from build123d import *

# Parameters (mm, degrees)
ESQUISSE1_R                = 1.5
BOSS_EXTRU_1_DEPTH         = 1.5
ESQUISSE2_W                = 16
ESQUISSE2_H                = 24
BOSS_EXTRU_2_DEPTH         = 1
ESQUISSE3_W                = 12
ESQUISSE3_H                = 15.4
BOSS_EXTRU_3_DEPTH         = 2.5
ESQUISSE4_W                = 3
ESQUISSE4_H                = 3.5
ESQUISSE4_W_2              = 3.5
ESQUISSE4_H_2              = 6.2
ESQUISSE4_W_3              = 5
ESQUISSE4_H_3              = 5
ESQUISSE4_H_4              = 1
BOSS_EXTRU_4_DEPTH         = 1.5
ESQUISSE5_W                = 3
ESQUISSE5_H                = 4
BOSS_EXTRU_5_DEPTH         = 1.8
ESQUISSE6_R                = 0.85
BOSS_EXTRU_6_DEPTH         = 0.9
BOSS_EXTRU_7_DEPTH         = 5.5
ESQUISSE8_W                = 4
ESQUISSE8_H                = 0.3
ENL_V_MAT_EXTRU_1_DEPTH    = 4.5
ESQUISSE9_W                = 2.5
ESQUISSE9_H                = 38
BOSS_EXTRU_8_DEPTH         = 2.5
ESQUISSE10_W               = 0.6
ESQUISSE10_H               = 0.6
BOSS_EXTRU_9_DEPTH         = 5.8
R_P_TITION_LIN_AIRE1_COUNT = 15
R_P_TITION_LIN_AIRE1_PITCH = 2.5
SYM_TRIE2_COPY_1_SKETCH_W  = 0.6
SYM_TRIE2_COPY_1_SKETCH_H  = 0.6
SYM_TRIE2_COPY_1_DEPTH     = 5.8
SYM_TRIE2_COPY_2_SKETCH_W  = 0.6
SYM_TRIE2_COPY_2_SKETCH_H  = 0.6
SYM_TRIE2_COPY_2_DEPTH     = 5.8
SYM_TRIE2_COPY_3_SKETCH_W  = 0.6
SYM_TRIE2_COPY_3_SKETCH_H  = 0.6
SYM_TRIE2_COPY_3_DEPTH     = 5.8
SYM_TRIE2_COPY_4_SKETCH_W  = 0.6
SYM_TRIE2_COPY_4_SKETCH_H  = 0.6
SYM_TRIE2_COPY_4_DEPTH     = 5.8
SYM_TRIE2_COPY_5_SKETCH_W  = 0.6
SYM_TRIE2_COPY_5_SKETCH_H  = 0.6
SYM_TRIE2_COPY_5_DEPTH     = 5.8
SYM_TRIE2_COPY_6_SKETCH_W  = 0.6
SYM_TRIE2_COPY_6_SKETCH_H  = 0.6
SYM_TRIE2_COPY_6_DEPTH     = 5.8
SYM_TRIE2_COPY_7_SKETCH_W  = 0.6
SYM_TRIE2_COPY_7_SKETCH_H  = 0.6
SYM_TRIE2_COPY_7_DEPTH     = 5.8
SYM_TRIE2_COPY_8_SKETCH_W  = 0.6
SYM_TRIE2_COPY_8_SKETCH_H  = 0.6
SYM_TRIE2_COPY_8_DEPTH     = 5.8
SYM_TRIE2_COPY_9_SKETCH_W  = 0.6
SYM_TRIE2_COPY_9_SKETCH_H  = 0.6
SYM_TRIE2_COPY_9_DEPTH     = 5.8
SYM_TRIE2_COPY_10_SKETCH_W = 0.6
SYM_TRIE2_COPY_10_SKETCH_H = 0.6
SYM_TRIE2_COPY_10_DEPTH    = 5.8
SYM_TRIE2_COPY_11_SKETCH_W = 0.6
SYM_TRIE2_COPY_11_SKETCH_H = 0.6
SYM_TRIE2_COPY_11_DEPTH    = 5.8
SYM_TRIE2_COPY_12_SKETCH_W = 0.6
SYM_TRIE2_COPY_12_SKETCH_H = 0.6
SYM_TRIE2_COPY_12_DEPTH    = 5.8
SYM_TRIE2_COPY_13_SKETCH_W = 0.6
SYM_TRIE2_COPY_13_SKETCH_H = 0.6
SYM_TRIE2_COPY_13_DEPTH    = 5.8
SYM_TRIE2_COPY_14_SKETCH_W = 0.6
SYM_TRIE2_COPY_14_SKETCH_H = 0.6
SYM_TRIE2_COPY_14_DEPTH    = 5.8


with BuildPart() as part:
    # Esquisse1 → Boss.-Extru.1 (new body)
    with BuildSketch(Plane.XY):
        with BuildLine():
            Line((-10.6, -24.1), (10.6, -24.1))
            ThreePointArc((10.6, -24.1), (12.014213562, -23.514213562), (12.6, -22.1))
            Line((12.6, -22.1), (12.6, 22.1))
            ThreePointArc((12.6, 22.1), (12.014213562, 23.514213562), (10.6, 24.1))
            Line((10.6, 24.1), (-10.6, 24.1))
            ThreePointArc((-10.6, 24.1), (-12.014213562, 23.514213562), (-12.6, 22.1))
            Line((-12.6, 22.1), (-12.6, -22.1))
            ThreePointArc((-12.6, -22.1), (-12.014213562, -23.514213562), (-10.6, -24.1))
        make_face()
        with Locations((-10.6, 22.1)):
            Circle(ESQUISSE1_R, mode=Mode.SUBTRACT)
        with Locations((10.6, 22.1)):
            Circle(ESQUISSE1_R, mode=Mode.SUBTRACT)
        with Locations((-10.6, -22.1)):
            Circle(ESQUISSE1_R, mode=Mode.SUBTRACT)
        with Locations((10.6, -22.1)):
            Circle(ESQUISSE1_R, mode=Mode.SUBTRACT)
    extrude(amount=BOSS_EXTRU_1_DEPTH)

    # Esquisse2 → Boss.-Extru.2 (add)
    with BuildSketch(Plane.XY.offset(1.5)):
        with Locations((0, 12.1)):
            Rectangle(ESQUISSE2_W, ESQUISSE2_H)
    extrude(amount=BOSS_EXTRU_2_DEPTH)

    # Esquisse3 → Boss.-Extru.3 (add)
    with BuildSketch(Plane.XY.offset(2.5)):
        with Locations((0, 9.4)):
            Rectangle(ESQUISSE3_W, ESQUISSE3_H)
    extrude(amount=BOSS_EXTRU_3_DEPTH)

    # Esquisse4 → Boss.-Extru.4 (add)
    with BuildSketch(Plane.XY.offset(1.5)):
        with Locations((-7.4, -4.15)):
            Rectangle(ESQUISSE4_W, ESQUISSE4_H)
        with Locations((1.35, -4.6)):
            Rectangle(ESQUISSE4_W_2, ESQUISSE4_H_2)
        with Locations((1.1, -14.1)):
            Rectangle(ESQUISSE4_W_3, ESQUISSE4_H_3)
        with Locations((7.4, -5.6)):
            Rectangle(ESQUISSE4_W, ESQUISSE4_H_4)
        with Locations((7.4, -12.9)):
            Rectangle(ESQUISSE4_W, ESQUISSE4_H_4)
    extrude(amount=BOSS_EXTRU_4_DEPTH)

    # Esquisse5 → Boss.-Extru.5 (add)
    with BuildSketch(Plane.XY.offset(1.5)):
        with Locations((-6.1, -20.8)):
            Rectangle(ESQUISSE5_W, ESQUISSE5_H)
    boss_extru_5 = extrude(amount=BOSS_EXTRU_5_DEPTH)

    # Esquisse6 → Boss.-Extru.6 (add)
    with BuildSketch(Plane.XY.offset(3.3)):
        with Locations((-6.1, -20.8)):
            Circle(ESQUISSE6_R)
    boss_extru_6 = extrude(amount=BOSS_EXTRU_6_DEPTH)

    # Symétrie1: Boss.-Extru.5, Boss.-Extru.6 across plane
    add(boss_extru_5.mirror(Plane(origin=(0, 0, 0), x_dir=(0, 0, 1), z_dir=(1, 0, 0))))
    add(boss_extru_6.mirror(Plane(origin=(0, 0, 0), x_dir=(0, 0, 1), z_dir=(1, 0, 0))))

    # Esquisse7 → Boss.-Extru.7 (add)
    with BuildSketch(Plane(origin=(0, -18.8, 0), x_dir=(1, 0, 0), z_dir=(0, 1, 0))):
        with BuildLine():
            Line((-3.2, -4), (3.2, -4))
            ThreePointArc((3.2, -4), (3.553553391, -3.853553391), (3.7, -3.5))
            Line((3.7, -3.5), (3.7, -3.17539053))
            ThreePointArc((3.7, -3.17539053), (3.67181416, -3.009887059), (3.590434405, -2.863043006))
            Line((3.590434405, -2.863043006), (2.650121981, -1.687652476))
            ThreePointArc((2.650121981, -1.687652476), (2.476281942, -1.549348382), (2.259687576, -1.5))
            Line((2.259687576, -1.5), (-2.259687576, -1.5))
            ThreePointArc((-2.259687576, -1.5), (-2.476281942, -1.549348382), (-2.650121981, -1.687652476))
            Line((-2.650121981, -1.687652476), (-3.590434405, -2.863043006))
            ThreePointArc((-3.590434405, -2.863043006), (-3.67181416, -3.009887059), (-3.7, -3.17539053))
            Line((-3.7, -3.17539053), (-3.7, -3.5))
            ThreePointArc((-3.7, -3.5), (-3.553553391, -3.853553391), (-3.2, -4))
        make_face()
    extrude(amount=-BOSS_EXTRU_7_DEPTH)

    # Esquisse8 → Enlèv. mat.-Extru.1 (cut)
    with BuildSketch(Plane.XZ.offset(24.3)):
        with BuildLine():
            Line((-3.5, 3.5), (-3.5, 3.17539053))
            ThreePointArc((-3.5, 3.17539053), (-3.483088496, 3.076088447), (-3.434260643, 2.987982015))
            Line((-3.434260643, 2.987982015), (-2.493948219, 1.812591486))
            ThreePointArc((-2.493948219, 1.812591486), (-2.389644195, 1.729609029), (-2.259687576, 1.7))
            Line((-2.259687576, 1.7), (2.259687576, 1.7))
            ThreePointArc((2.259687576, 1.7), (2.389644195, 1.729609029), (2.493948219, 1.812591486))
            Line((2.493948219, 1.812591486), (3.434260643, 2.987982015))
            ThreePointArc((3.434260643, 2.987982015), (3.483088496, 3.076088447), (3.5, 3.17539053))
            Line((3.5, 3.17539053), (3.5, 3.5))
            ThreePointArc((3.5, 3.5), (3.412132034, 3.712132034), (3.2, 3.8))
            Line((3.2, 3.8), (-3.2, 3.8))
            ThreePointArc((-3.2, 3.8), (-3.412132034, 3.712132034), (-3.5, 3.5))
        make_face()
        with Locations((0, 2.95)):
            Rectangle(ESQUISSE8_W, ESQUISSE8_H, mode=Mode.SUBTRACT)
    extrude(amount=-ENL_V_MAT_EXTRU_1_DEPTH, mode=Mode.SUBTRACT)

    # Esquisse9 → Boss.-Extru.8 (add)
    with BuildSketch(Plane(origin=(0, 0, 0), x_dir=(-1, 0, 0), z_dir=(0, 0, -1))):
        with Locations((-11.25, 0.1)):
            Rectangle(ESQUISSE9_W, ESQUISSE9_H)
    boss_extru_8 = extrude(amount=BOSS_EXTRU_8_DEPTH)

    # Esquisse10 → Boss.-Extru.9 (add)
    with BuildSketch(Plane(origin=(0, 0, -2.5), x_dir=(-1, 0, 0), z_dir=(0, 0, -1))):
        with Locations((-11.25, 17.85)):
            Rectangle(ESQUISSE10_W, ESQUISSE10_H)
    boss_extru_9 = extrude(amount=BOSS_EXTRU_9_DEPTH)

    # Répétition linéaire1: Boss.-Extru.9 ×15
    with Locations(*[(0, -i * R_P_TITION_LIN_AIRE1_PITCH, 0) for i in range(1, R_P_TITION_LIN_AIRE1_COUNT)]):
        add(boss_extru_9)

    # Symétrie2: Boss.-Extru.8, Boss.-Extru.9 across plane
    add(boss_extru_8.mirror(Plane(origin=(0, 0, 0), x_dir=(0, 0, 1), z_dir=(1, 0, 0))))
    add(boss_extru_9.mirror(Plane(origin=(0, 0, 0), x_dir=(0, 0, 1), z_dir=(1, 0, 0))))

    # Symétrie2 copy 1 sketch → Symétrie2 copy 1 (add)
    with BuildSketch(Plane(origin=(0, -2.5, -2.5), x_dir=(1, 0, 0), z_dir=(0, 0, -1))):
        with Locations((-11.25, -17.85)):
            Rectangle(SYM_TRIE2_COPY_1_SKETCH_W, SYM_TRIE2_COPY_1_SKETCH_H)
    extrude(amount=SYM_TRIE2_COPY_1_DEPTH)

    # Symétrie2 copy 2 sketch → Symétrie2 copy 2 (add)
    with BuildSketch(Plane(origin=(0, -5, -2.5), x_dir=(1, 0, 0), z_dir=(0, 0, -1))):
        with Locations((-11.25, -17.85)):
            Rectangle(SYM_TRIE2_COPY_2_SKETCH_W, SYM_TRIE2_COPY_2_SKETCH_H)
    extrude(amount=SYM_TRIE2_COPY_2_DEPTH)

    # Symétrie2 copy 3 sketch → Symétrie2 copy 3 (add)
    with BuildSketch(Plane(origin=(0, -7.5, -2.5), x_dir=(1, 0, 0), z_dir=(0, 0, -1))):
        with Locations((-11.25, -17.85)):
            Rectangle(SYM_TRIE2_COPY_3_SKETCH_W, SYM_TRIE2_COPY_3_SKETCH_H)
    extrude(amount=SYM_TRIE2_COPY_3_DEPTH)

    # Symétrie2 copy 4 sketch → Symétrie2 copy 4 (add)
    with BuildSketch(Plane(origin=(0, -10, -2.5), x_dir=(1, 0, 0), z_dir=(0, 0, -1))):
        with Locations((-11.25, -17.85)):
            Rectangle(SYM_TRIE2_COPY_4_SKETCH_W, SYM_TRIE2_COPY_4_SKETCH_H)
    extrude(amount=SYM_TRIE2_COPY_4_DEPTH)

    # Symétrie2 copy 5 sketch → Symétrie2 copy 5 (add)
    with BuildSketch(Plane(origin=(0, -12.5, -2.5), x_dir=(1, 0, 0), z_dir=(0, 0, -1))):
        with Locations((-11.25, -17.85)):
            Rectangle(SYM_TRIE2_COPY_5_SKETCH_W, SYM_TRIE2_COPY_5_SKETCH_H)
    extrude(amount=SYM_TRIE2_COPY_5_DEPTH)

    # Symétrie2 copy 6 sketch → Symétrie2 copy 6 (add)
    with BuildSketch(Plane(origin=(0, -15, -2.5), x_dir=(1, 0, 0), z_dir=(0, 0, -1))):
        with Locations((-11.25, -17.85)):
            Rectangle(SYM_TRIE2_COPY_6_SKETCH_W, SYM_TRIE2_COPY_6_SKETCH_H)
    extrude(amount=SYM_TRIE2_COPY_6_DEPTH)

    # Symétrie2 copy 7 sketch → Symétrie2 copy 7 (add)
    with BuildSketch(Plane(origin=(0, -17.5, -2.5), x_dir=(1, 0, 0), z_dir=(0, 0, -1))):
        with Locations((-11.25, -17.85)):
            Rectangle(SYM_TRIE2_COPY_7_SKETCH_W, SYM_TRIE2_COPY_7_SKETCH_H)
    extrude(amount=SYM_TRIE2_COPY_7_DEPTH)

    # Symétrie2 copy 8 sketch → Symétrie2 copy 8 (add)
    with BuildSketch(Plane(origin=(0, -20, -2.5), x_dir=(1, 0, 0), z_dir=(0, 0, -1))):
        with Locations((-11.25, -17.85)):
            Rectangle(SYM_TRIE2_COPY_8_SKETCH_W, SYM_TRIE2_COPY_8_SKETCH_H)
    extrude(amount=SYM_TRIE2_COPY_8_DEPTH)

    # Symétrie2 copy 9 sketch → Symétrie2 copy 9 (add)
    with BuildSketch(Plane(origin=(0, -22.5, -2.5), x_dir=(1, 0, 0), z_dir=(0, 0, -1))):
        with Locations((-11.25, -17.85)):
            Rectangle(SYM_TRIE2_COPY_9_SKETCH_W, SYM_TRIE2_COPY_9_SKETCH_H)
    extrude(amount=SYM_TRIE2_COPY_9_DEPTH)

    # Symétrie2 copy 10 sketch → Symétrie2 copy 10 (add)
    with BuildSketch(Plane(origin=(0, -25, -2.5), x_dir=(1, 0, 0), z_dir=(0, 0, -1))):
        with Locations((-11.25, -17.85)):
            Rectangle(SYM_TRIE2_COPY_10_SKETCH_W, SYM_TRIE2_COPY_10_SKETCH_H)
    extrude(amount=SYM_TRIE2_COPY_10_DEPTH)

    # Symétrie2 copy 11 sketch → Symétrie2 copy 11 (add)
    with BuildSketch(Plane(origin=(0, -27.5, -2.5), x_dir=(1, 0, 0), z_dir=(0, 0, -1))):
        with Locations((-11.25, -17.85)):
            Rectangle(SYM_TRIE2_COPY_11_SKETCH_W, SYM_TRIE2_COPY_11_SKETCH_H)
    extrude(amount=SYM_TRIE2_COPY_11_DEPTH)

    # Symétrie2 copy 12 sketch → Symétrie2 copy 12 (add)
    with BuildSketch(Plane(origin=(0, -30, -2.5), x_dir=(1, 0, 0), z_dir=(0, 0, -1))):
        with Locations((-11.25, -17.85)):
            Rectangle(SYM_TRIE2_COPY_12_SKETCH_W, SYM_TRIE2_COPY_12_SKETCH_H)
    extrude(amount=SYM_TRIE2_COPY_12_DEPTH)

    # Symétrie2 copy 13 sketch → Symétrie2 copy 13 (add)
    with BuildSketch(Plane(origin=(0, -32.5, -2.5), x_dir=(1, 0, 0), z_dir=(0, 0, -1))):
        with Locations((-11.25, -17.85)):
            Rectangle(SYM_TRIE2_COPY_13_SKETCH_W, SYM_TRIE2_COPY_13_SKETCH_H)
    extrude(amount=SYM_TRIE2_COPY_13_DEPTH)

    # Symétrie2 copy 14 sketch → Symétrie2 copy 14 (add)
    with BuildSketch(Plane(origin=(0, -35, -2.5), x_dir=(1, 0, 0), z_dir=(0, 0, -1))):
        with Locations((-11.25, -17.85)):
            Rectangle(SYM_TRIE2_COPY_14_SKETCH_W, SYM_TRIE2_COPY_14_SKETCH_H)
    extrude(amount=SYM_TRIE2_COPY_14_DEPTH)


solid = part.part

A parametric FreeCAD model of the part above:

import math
import FreeCAD as App
import Part
import Sketcher
Q = App.Units.Quantity


def add_polygon(sketch, points):
    """Adds a closed chain of lines whose ends are joined by coincident constraints."""
    first, n = sketch.GeometryCount, len(points)
    for a, b in zip(points, points[1:] + points[:1]):
        sketch.addGeometry(Part.LineSegment(App.Vector(*a, 0), App.Vector(*b, 0)), False)
    for i in range(n):
        sketch.addConstraint(Sketcher.Constraint("Coincident", first + i, 2, first + (i + 1) % n, 1))

doc = App.newDocument("Part")
body = doc.addObject("PartDesign::Body", "Body")

# Sketch on XY plane
sketch1 = doc.addObject("Sketcher::SketchObject", "Sketch")
body.addObject(sketch1)
sketch1.AttachmentSupport = (doc.XY_Plane, [""])
sketch1.MapMode = "FlatFace"
sketch1.addGeometry(Part.LineSegment(App.Vector(-10.6, -24.1, 0), App.Vector(10.6, -24.1, 0)), False)
sketch1.addGeometry(Part.ArcOfCircle(Part.Circle(App.Vector(10.6, -22.1, 0), App.Vector(0, 0, 1), 2), math.radians(-90), math.radians(0)), False)
sketch1.addGeometry(Part.LineSegment(App.Vector(12.6, -22.1, 0), App.Vector(12.6, 22.1, 0)), False)
sketch1.addGeometry(Part.ArcOfCircle(Part.Circle(App.Vector(10.6, 22.1, 0), App.Vector(0, 0, 1), 2), math.radians(0), math.radians(90)), False)
sketch1.addGeometry(Part.LineSegment(App.Vector(10.6, 24.1, 0), App.Vector(-10.6, 24.1, 0)), False)
sketch1.addGeometry(Part.ArcOfCircle(Part.Circle(App.Vector(-10.6, 22.1, 0), App.Vector(0, 0, 1), 2), math.radians(90), math.radians(180)), False)
sketch1.addGeometry(Part.LineSegment(App.Vector(-12.6, 22.1, 0), App.Vector(-12.6, -22.1, 0)), False)
sketch1.addGeometry(Part.ArcOfCircle(Part.Circle(App.Vector(-10.6, -22.1, 0), App.Vector(0, 0, 1), 2), math.radians(-180), math.radians(-90)), False)
sketch1.addGeometry(Part.Circle(App.Vector(-10.6, -22.1, 0), App.Vector(0, 0, 1), 1.5), False)
sketch1.addGeometry(Part.Circle(App.Vector(10.6, -22.1, 0), App.Vector(0, 0, 1), 1.5), False)
sketch1.addGeometry(Part.Circle(App.Vector(-10.6, 22.1, 0), App.Vector(0, 0, 1), 1.5), False)
sketch1.addGeometry(Part.Circle(App.Vector(10.6, 22.1, 0), App.Vector(0, 0, 1), 1.5), False)
sketch1.addConstraint(Sketcher.Constraint("Tangent", 0, 2, 1, 1))
sketch1.addConstraint(Sketcher.Constraint("Tangent", 1, 2, 2, 1))
sketch1.addConstraint(Sketcher.Constraint("Tangent", 2, 2, 3, 1))
sketch1.addConstraint(Sketcher.Constraint("Tangent", 3, 2, 4, 1))
sketch1.addConstraint(Sketcher.Constraint("Tangent", 4, 2, 5, 1))
sketch1.addConstraint(Sketcher.Constraint("Tangent", 5, 2, 6, 1))
sketch1.addConstraint(Sketcher.Constraint("Tangent", 6, 2, 7, 1))
sketch1.addConstraint(Sketcher.Constraint("Tangent", 7, 2, 0, 1))
sketch1.addConstraint(Sketcher.Constraint("Horizontal", 0))
sketch1.addConstraint(Sketcher.Constraint("Vertical", 2))
sketch1.addConstraint(Sketcher.Constraint("Horizontal", 4))
sketch1.addConstraint(Sketcher.Constraint("Vertical", 6))
sketch1.addConstraint(Sketcher.Constraint("Coincident", 8, 3, 7, 3))
sketch1.addConstraint(Sketcher.Constraint("Coincident", 9, 3, 1, 3))
sketch1.addConstraint(Sketcher.Constraint("Coincident", 10, 3, 5, 3))
sketch1.addConstraint(Sketcher.Constraint("Coincident", 11, 3, 3, 3))
sketch1.addConstraint(Sketcher.Constraint("Equal", 1, 3))
sketch1.addConstraint(Sketcher.Constraint("Equal", 3, 5))
sketch1.addConstraint(Sketcher.Constraint("Equal", 5, 7))
sketch1.addConstraint(Sketcher.Constraint("Equal", 8, 9))
sketch1.addConstraint(Sketcher.Constraint("Equal", 9, 10))
sketch1.addConstraint(Sketcher.Constraint("Equal", 10, 11))
sketch1.addConstraint(Sketcher.Constraint("Symmetric", 1, 3, 5, 3, -1, 1))
sketch1.addConstraint(Sketcher.Constraint("Diameter", 8, Q("3 mm")))
sketch1.addConstraint(Sketcher.Constraint("Radius", 1, Q("2 mm")))
sketch1.addConstraint(Sketcher.Constraint("DistanceX", 0, 1, 0, 2, Q("21.2 mm")))
sketch1.addConstraint(Sketcher.Constraint("DistanceY", 2, 1, 2, 2, Q("44.2 mm")))
pad1 = doc.addObject("PartDesign::Pad", "Pad")
body.addObject(pad1)
pad1.Profile = sketch1
pad1.Length = 1.5

# Sketch on XY plane
sketch2 = doc.addObject("Sketcher::SketchObject", "Sketch001")
body.addObject(sketch2)
sketch2.AttachmentSupport = (doc.XY_Plane, [""])
sketch2.MapMode = "FlatFace"
sketch2.AttachmentOffset = App.Placement(App.Vector(0, 0, 1.5), App.Rotation())
add_polygon(sketch2, [(-8, 24.1), (-8, 0.1), (8, 0.1), (8, 24.1)])  # lines 0-3
sketch2.addConstraint(Sketcher.Constraint("Vertical", 0))
sketch2.addConstraint(Sketcher.Constraint("Horizontal", 1))
sketch2.addConstraint(Sketcher.Constraint("Vertical", 2))
sketch2.addConstraint(Sketcher.Constraint("Horizontal", 3))
sketch2.addConstraint(Sketcher.Constraint("DistanceX", 1, 1, 1, 2, Q("16 mm")))
sketch2.addConstraint(Sketcher.Constraint("DistanceY", 0, 2, 0, 1, Q("24 mm")))
sketch2.addConstraint(Sketcher.Constraint("DistanceX", 0, 2, -1, 1, Q("8 mm")))
sketch2.addConstraint(Sketcher.Constraint("DistanceY", -1, 1, 0, 2, Q("0.1 mm")))
pad2 = doc.addObject("PartDesign::Pad", "Pad001")
body.addObject(pad2)
pad2.Profile = sketch2
pad2.Length = 1

# Sketch on XY plane
sketch3 = doc.addObject("Sketcher::SketchObject", "Sketch002")
body.addObject(sketch3)
sketch3.AttachmentSupport = (doc.XY_Plane, [""])
sketch3.MapMode = "FlatFace"
sketch3.AttachmentOffset = App.Placement(App.Vector(0, 0, 2.5), App.Rotation())
add_polygon(sketch3, [(-6, 17.1), (-6, 1.7), (6, 1.7), (6, 17.1)])  # lines 0-3
sketch3.addConstraint(Sketcher.Constraint("Vertical", 0))
sketch3.addConstraint(Sketcher.Constraint("Horizontal", 1))
sketch3.addConstraint(Sketcher.Constraint("Vertical", 2))
sketch3.addConstraint(Sketcher.Constraint("Horizontal", 3))
sketch3.addConstraint(Sketcher.Constraint("DistanceX", 1, 1, 1, 2, Q("12 mm")))
sketch3.addConstraint(Sketcher.Constraint("DistanceY", 0, 2, 0, 1, Q("15.4 mm")))
sketch3.addConstraint(Sketcher.Constraint("DistanceX", 0, 2, -1, 1, Q("6 mm")))
sketch3.addConstraint(Sketcher.Constraint("DistanceY", -1, 1, 0, 2, Q("1.7 mm")))
pad3 = doc.addObject("PartDesign::Pad", "Pad002")
body.addObject(pad3)
pad3.Profile = sketch3
pad3.Length = 2.5

# Sketch on XY plane
sketch4 = doc.addObject("Sketcher::SketchObject", "Sketch003")
body.addObject(sketch4)
sketch4.AttachmentSupport = (doc.XY_Plane, [""])
sketch4.MapMode = "FlatFace"
sketch4.AttachmentOffset = App.Placement(App.Vector(0, 0, 1.5), App.Rotation())
add_polygon(sketch4, [(-8.9, -2.4), (-8.9, -5.9), (-5.9, -5.9), (-5.9, -2.4)])  # lines 0-3
add_polygon(sketch4, [(-0.4, -1.5), (-0.4, -7.7), (3.1, -7.7), (3.1, -1.5)])  # lines 4-7
add_polygon(sketch4, [(-1.4, -11.6), (-1.4, -16.6), (3.6, -16.6), (3.6, -11.6)])  # lines 8-11
add_polygon(sketch4, [(5.9, -5.1), (5.9, -6.1), (8.9, -6.1), (8.9, -5.1)])  # lines 12-15
add_polygon(sketch4, [(5.9, -12.4), (5.9, -13.4), (8.9, -13.4), (8.9, -12.4)])  # lines 16-19
sketch4.addConstraint(Sketcher.Constraint("Vertical", 0))
sketch4.addConstraint(Sketcher.Constraint("Horizontal", 1))
sketch4.addConstraint(Sketcher.Constraint("Vertical", 2))
sketch4.addConstraint(Sketcher.Constraint("Horizontal", 3))
sketch4.addConstraint(Sketcher.Constraint("Vertical", 4))
sketch4.addConstraint(Sketcher.Constraint("Horizontal", 5))
sketch4.addConstraint(Sketcher.Constraint("Vertical", 6))
sketch4.addConstraint(Sketcher.Constraint("Horizontal", 7))
sketch4.addConstraint(Sketcher.Constraint("Vertical", 8))
sketch4.addConstraint(Sketcher.Constraint("Horizontal", 9))
sketch4.addConstraint(Sketcher.Constraint("Vertical", 10))
sketch4.addConstraint(Sketcher.Constraint("Horizontal", 11))
sketch4.addConstraint(Sketcher.Constraint("Vertical", 12))
sketch4.addConstraint(Sketcher.Constraint("Horizontal", 13))
sketch4.addConstraint(Sketcher.Constraint("Vertical", 14))
sketch4.addConstraint(Sketcher.Constraint("Horizontal", 15))
sketch4.addConstraint(Sketcher.Constraint("Vertical", 16))
sketch4.addConstraint(Sketcher.Constraint("Horizontal", 17))
sketch4.addConstraint(Sketcher.Constraint("Vertical", 18))
sketch4.addConstraint(Sketcher.Constraint("Horizontal", 19))
sketch4.addConstraint(Sketcher.Constraint("Vertical", 15, 2, 16, 2))
sketch4.addConstraint(Sketcher.Constraint("Vertical", 14, 2, 17, 2))
sketch4.addConstraint(Sketcher.Constraint("Equal", 3, 13))
sketch4.addConstraint(Sketcher.Constraint("Equal", 7, 0))
sketch4.addConstraint(Sketcher.Constraint("Equal", 11, 8))
sketch4.addConstraint(Sketcher.Constraint("Equal", 14, 16))
sketch4.addConstraint(Sketcher.Constraint("DistanceX", 1, 1, 1, 2, Q("3 mm")))
sketch4.addConstraint(Sketcher.Constraint("DistanceX", 9, 1, 9, 2, Q("5 mm")))
sketch4.addConstraint(Sketcher.Constraint("DistanceY", 12, 2, 12, 1, Q("1 mm")))
sketch4.addConstraint(Sketcher.Constraint("DistanceX", 5, 1, 5, 2, Q("3.5 mm")))
sketch4.addConstraint(Sketcher.Constraint("DistanceY", 4, 2, 4, 1, Q("6.2 mm")))
sketch4.addConstraint(Sketcher.Constraint("DistanceX", 1, 2, 5, 2, Q("9 mm")))
sketch4.addConstraint(Sketcher.Constraint("DistanceX", 8, 2, 4, 2, Q("1 mm")))
sketch4.addConstraint(Sketcher.Constraint("DistanceX", 0, 2, -1, 1, Q("8.9 mm")))
sketch4.addConstraint(Sketcher.Constraint("DistanceY", 0, 2, -1, 1, Q("5.9 mm")))
sketch4.addConstraint(Sketcher.Constraint("DistanceY", 4, 2, -1, 1, Q("7.7 mm")))
sketch4.addConstraint(Sketcher.Constraint("DistanceY", 8, 2, -1, 1, Q("16.6 mm")))
sketch4.addConstraint(Sketcher.Constraint("DistanceX", -1, 1, 12, 2, Q("5.9 mm")))
sketch4.addConstraint(Sketcher.Constraint("DistanceY", 12, 2, -1, 1, Q("6.1 mm")))
sketch4.addConstraint(Sketcher.Constraint("DistanceY", 16, 2, -1, 1, Q("13.4 mm")))
pad4 = doc.addObject("PartDesign::Pad", "Pad003")
body.addObject(pad4)
pad4.Profile = sketch4
pad4.Length = 1.5

# Sketch on XY plane
sketch5 = doc.addObject("Sketcher::SketchObject", "Sketch004")
body.addObject(sketch5)
sketch5.AttachmentSupport = (doc.XY_Plane, [""])
sketch5.MapMode = "FlatFace"
sketch5.AttachmentOffset = App.Placement(App.Vector(0, 0, 1.5), App.Rotation())
add_polygon(sketch5, [(-7.6, -18.8), (-7.6, -22.8), (-4.6, -22.8), (-4.6, -18.8)])  # lines 0-3
sketch5.addConstraint(Sketcher.Constraint("Vertical", 0))
sketch5.addConstraint(Sketcher.Constraint("Horizontal", 1))
sketch5.addConstraint(Sketcher.Constraint("Vertical", 2))
sketch5.addConstraint(Sketcher.Constraint("Horizontal", 3))
sketch5.addConstraint(Sketcher.Constraint("DistanceX", 1, 1, 1, 2, Q("3 mm")))
sketch5.addConstraint(Sketcher.Constraint("DistanceY", 0, 2, 0, 1, Q("4 mm")))
sketch5.addConstraint(Sketcher.Constraint("DistanceX", 0, 2, -1, 1, Q("7.6 mm")))
sketch5.addConstraint(Sketcher.Constraint("DistanceY", 0, 2, -1, 1, Q("22.8 mm")))
pad5 = doc.addObject("PartDesign::Pad", "Pad004")
body.addObject(pad5)
pad5.Profile = sketch5
pad5.Length = 1.8

# Sketch on XY plane
sketch6 = doc.addObject("Sketcher::SketchObject", "Sketch005")
body.addObject(sketch6)
sketch6.AttachmentSupport = (doc.XY_Plane, [""])
sketch6.MapMode = "FlatFace"
sketch6.AttachmentOffset = App.Placement(App.Vector(0, 0, 3.3), App.Rotation())
sketch6.addGeometry(Part.Circle(App.Vector(-6.1, -20.8, 0), App.Vector(0, 0, 1), 0.85), False)
sketch6.addConstraint(Sketcher.Constraint("Diameter", 0, Q("1.7 mm")))
sketch6.addConstraint(Sketcher.Constraint("DistanceX", 0, 3, -1, 1, Q("6.1 mm")))
sketch6.addConstraint(Sketcher.Constraint("DistanceY", 0, 3, -1, 1, Q("20.8 mm")))
pad6 = doc.addObject("PartDesign::Pad", "Pad005")
body.addObject(pad6)
pad6.Profile = sketch6
pad6.Length = 0.9
doc.recompute()

mirrored = doc.addObject("PartDesign::Mirrored", "Mirrored")
body.addObject(mirrored)
mirrored.Originals = [pad5, pad6]
mirrored.MirrorPlane = (doc.YZ_Plane, [""])
body.Tip = mirrored

# Sketch on XZ plane
sketch7 = doc.addObject("Sketcher::SketchObject", "Sketch006")
body.addObject(sketch7)
sketch7.AttachmentSupport = (doc.XZ_Plane, [""])
sketch7.MapMode = "FlatFace"
sketch7.AttachmentOffset = App.Placement(App.Vector(0, 0, 18.8), App.Rotation())
sketch7.addGeometry(Part.LineSegment(App.Vector(-3.2, 4, 0), App.Vector(3.2, 4, 0)), False)
sketch7.addGeometry(Part.ArcOfCircle(Part.Circle(App.Vector(3.2, 3.5, 0), App.Vector(0, 0, 1), 0.5), math.radians(0), math.radians(90)), False)
sketch7.addGeometry(Part.LineSegment(App.Vector(3.7, 3.5, 0), App.Vector(3.7, 3.175391, 0)), False)
sketch7.addGeometry(Part.ArcOfCircle(Part.Circle(App.Vector(3.2, 3.175391, 0), App.Vector(0, 0, 1), 0.5), math.radians(-38.659808), math.radians(0)), False)
sketch7.addGeometry(Part.LineSegment(App.Vector(3.590434, 2.863043, 0), App.Vector(2.650122, 1.687652, 0)), False)
sketch7.addGeometry(Part.ArcOfCircle(Part.Circle(App.Vector(2.259688, 2, 0), App.Vector(0, 0, 1), 0.5), math.radians(-90), math.radians(-38.659808)), False)
sketch7.addGeometry(Part.LineSegment(App.Vector(2.259688, 1.5, 0), App.Vector(-2.259688, 1.5, 0)), False)
sketch7.addGeometry(Part.ArcOfCircle(Part.Circle(App.Vector(-2.259688, 2, 0), App.Vector(0, 0, 1), 0.5), math.radians(-141.340192), math.radians(-90)), False)
sketch7.addGeometry(Part.LineSegment(App.Vector(-2.650122, 1.687652, 0), App.Vector(-3.590434, 2.863043, 0)), False)
sketch7.addGeometry(Part.ArcOfCircle(Part.Circle(App.Vector(-3.2, 3.175391, 0), App.Vector(0, 0, 1), 0.5), math.radians(180), math.radians(218.659808)), False)
sketch7.addGeometry(Part.LineSegment(App.Vector(-3.7, 3.175391, 0), App.Vector(-3.7, 3.5, 0)), False)
sketch7.addGeometry(Part.ArcOfCircle(Part.Circle(App.Vector(-3.2, 3.5, 0), App.Vector(0, 0, 1), 0.5), math.radians(90), math.radians(180)), False)
sketch7.addConstraint(Sketcher.Constraint("Tangent", 0, 2, 1, 2))
sketch7.addConstraint(Sketcher.Constraint("Tangent", 1, 1, 2, 1))
sketch7.addConstraint(Sketcher.Constraint("Tangent", 2, 2, 3, 2))
sketch7.addConstraint(Sketcher.Constraint("Tangent", 3, 1, 4, 1))
sketch7.addConstraint(Sketcher.Constraint("Tangent", 4, 2, 5, 2))
sketch7.addConstraint(Sketcher.Constraint("Tangent", 5, 1, 6, 1))
sketch7.addConstraint(Sketcher.Constraint("Tangent", 6, 2, 7, 2))
sketch7.addConstraint(Sketcher.Constraint("Tangent", 7, 1, 8, 1))
sketch7.addConstraint(Sketcher.Constraint("Tangent", 8, 2, 9, 2))
sketch7.addConstraint(Sketcher.Constraint("Tangent", 9, 1, 10, 1))
sketch7.addConstraint(Sketcher.Constraint("Tangent", 10, 2, 11, 2))
sketch7.addConstraint(Sketcher.Constraint("Tangent", 11, 1, 0, 1))
sketch7.addConstraint(Sketcher.Constraint("Horizontal", 0))
sketch7.addConstraint(Sketcher.Constraint("Vertical", 2))
sketch7.addConstraint(Sketcher.Constraint("Horizontal", 6))
sketch7.addConstraint(Sketcher.Constraint("Vertical", 10))
sketch7.addConstraint(Sketcher.Constraint("Equal", 1, 3))
sketch7.addConstraint(Sketcher.Constraint("Equal", 3, 5))
sketch7.addConstraint(Sketcher.Constraint("Equal", 5, 7))
sketch7.addConstraint(Sketcher.Constraint("Equal", 7, 9))
sketch7.addConstraint(Sketcher.Constraint("Equal", 9, 11))
sketch7.addConstraint(Sketcher.Constraint("Symmetric", 3, 3, 9, 3, -2))
sketch7.addConstraint(Sketcher.Constraint("Horizontal", 4, 2, 7, 1))
sketch7.addConstraint(Sketcher.Constraint("Radius", 1, Q("0.5 mm")))
sketch7.addConstraint(Sketcher.Constraint("DistanceX", 0, 1, 0, 2, Q("6.4 mm")))
sketch7.addConstraint(Sketcher.Constraint("DistanceY", -1, 1, 5, 3, Q("2 mm")))
sketch7.addConstraint(Sketcher.Constraint("DistanceY", -1, 1, 0, 2, Q("4 mm")))
sketch7.addConstraint(Sketcher.Constraint("DistanceY", 2, 2, 2, 1, Q("0.324609 mm")))
sketch7.addConstraint(Sketcher.Constraint("DistanceX", 6, 2, 6, 1, Q("4.519375 mm")))
pad7 = doc.addObject("PartDesign::Pad", "Pad006")
body.addObject(pad7)
pad7.Profile = sketch7
pad7.Length = 5.5

# Sketch on XZ plane
sketch8 = doc.addObject("Sketcher::SketchObject", "Sketch007")
body.addObject(sketch8)
sketch8.AttachmentSupport = (doc.XZ_Plane, [""])
sketch8.MapMode = "FlatFace"
sketch8.AttachmentOffset = App.Placement(App.Vector(0, 0, 24.3), App.Rotation())
sketch8.addGeometry(Part.LineSegment(App.Vector(-3.5, 3.5, 0), App.Vector(-3.5, 3.175391, 0)), False)  # 0
sketch8.addGeometry(Part.ArcOfCircle(Part.Circle(App.Vector(-3.2, 3.175391, 0), App.Vector(0, 0, 1), 0.3), math.radians(180), math.radians(218.659808)), False)  # 1
sketch8.addGeometry(Part.LineSegment(App.Vector(-3.434261, 2.987982, 0), App.Vector(-2.493948, 1.812591, 0)), False)  # 2
sketch8.addGeometry(Part.ArcOfCircle(Part.Circle(App.Vector(-2.259688, 2, 0), App.Vector(0, 0, 1), 0.3), math.radians(-141.340192), math.radians(-90)), False)  # 3
sketch8.addGeometry(Part.LineSegment(App.Vector(-2.259688, 1.7, 0), App.Vector(2.259688, 1.7, 0)), False)  # 4
sketch8.addGeometry(Part.ArcOfCircle(Part.Circle(App.Vector(2.259688, 2, 0), App.Vector(0, 0, 1), 0.3), math.radians(-90), math.radians(-38.659808)), False)  # 5
sketch8.addGeometry(Part.LineSegment(App.Vector(2.493948, 1.812591, 0), App.Vector(3.434261, 2.987982, 0)), False)  # 6
sketch8.addGeometry(Part.ArcOfCircle(Part.Circle(App.Vector(3.2, 3.175391, 0), App.Vector(0, 0, 1), 0.3), math.radians(-38.659808), math.radians(0)), False)  # 7
sketch8.addGeometry(Part.LineSegment(App.Vector(3.5, 3.175391, 0), App.Vector(3.5, 3.5, 0)), False)  # 8
sketch8.addGeometry(Part.ArcOfCircle(Part.Circle(App.Vector(3.2, 3.5, 0), App.Vector(0, 0, 1), 0.3), math.radians(0), math.radians(90)), False)  # 9
sketch8.addGeometry(Part.LineSegment(App.Vector(3.2, 3.8, 0), App.Vector(-3.2, 3.8, 0)), False)  # 10
sketch8.addGeometry(Part.ArcOfCircle(Part.Circle(App.Vector(-3.2, 3.5, 0), App.Vector(0, 0, 1), 0.3), math.radians(90), math.radians(180)), False)  # 11
add_polygon(sketch8, [(2, 2.8), (-2, 2.8), (-2, 3.1), (2, 3.1)])  # lines 12-15
sketch8.addConstraint(Sketcher.Constraint("Tangent", 0, 2, 1, 1))
sketch8.addConstraint(Sketcher.Constraint("Tangent", 1, 2, 2, 1))
sketch8.addConstraint(Sketcher.Constraint("Tangent", 2, 2, 3, 1))
sketch8.addConstraint(Sketcher.Constraint("Tangent", 3, 2, 4, 1))
sketch8.addConstraint(Sketcher.Constraint("Tangent", 4, 2, 5, 1))
sketch8.addConstraint(Sketcher.Constraint("Tangent", 5, 2, 6, 1))
sketch8.addConstraint(Sketcher.Constraint("Tangent", 6, 2, 7, 1))
sketch8.addConstraint(Sketcher.Constraint("Tangent", 7, 2, 8, 1))
sketch8.addConstraint(Sketcher.Constraint("Tangent", 8, 2, 9, 1))
sketch8.addConstraint(Sketcher.Constraint("Tangent", 9, 2, 10, 1))
sketch8.addConstraint(Sketcher.Constraint("Tangent", 10, 2, 11, 1))
sketch8.addConstraint(Sketcher.Constraint("Tangent", 11, 2, 0, 1))
sketch8.addConstraint(Sketcher.Constraint("Vertical", 0))
sketch8.addConstraint(Sketcher.Constraint("Horizontal", 4))
sketch8.addConstraint(Sketcher.Constraint("Vertical", 8))
sketch8.addConstraint(Sketcher.Constraint("Horizontal", 10))
sketch8.addConstraint(Sketcher.Constraint("Horizontal", 12))
sketch8.addConstraint(Sketcher.Constraint("Vertical", 13))
sketch8.addConstraint(Sketcher.Constraint("Horizontal", 14))
sketch8.addConstraint(Sketcher.Constraint("Vertical", 15))
sketch8.addConstraint(Sketcher.Constraint("Equal", 1, 3))
sketch8.addConstraint(Sketcher.Constraint("Equal", 3, 5))
sketch8.addConstraint(Sketcher.Constraint("Equal", 5, 7))
sketch8.addConstraint(Sketcher.Constraint("Equal", 7, 9))
sketch8.addConstraint(Sketcher.Constraint("Equal", 9, 11))
sketch8.addConstraint(Sketcher.Constraint("Symmetric", 1, 3, 7, 3, -2))
sketch8.addConstraint(Sketcher.Constraint("Horizontal", 2, 2, 5, 2))
sketch8.addConstraint(Sketcher.Constraint("Radius", 1, Q("0.3 mm")))
sketch8.addConstraint(Sketcher.Constraint("DistanceX", 12, 2, 12, 1, Q("4 mm")))
sketch8.addConstraint(Sketcher.Constraint("DistanceX", 10, 2, 10, 1, Q("6.4 mm")))
sketch8.addConstraint(Sketcher.Constraint("DistanceY", 13, 1, 13, 2, Q("0.3 mm")))
sketch8.addConstraint(Sketcher.Constraint("DistanceY", -1, 1, 3, 3, Q("2 mm")))
sketch8.addConstraint(Sketcher.Constraint("DistanceX", 12, 2, -1, 1, Q("2 mm")))
sketch8.addConstraint(Sketcher.Constraint("DistanceY", -1, 1, 9, 3, Q("3.5 mm")))
sketch8.addConstraint(Sketcher.Constraint("DistanceY", -1, 1, 12, 2, Q("2.8 mm")))
sketch8.addConstraint(Sketcher.Constraint("DistanceY", 0, 2, 0, 1, Q("0.324609 mm")))
sketch8.addConstraint(Sketcher.Constraint("DistanceY", 2, 2, 1, 3, Q("1.362799 mm")))
pocket1 = doc.addObject("PartDesign::Pocket", "Pocket")
body.addObject(pocket1)
pocket1.Profile = sketch8
pocket1.Length = 4.5

# Sketch on XY plane
sketch9 = doc.addObject("Sketcher::SketchObject", "Sketch008")
body.addObject(sketch9)
sketch9.AttachmentSupport = (doc.XY_Plane, [""])
sketch9.MapMode = "FlatFace"
add_polygon(sketch9, [(12.5, 19.1), (12.5, -18.9), (10, -18.9), (10, 19.1)])  # lines 0-3
sketch9.addConstraint(Sketcher.Constraint("Vertical", 0))
sketch9.addConstraint(Sketcher.Constraint("Horizontal", 1))
sketch9.addConstraint(Sketcher.Constraint("Vertical", 2))
sketch9.addConstraint(Sketcher.Constraint("Horizontal", 3))
sketch9.addConstraint(Sketcher.Constraint("DistanceY", 0, 2, 0, 1, Q("38 mm")))
sketch9.addConstraint(Sketcher.Constraint("DistanceX", 1, 2, 1, 1, Q("2.5 mm")))
sketch9.addConstraint(Sketcher.Constraint("DistanceX", -1, 1, 1, 2, Q("10 mm")))
sketch9.addConstraint(Sketcher.Constraint("DistanceY", 0, 2, -1, 1, Q("18.9 mm")))
pad8 = doc.addObject("PartDesign::Pad", "Pad007")
body.addObject(pad8)
pad8.Profile = sketch9
pad8.Length = 2.5
pad8.Reversed = True

# Sketch on XY plane
sketch10 = doc.addObject("Sketcher::SketchObject", "Sketch009")
body.addObject(sketch10)
sketch10.AttachmentSupport = (doc.XY_Plane, [""])
sketch10.MapMode = "FlatFace"
sketch10.AttachmentOffset = App.Placement(App.Vector(0, 0, -2.5), App.Rotation())
add_polygon(sketch10, [(11.55, 18.15), (11.55, 17.55), (10.95, 17.55), (10.95, 18.15)])  # lines 0-3
sketch10.addConstraint(Sketcher.Constraint("Vertical", 0))
sketch10.addConstraint(Sketcher.Constraint("Horizontal", 1))
sketch10.addConstraint(Sketcher.Constraint("Vertical", 2))
sketch10.addConstraint(Sketcher.Constraint("Horizontal", 3))
sketch10.addConstraint(Sketcher.Constraint("Equal", 3, 0))
sketch10.addConstraint(Sketcher.Constraint("DistanceX", 1, 2, 1, 1, Q("0.6 mm")))
sketch10.addConstraint(Sketcher.Constraint("DistanceX", -1, 1, 0, 2, Q("11.55 mm")))
sketch10.addConstraint(Sketcher.Constraint("DistanceY", -1, 1, 0, 2, Q("17.55 mm")))
pad9 = doc.addObject("PartDesign::Pad", "Pad008")
body.addObject(pad9)
pad9.Profile = sketch10
pad9.Length = 5.8
pad9.Reversed = True
doc.recompute()

linearpattern = doc.addObject("PartDesign::LinearPattern", "LinearPattern")
body.addObject(linearpattern)
linearpattern.Originals = [pad9]
linearpattern.Direction = (doc.Y_Axis, [""])
linearpattern.Mode = "offset"
linearpattern.Offset = 2.5
linearpattern.Occurrences = 15
linearpattern.Reversed = True
body.Tip = linearpattern
doc.recompute()

mirrored2 = doc.addObject("PartDesign::Mirrored", "Mirrored001")
body.addObject(mirrored2)
mirrored2.Originals = [pad8, pad9]
mirrored2.MirrorPlane = (doc.YZ_Plane, [""])
body.Tip = mirrored2

# Sketch on XY plane
sketch11 = doc.addObject("Sketcher::SketchObject", "Sketch010")
body.addObject(sketch11)
sketch11.AttachmentSupport = (doc.XY_Plane, [""])
sketch11.MapMode = "FlatFace"
sketch11.AttachmentOffset = App.Placement(App.Vector(0, 0, -2.5), App.Rotation())
add_polygon(sketch11, [(-11.55, 15.05), (-11.55, 15.65), (-10.95, 15.65), (-10.95, 15.05)])  # lines 0-3
sketch11.addConstraint(Sketcher.Constraint("Vertical", 0))
sketch11.addConstraint(Sketcher.Constraint("Horizontal", 1))
sketch11.addConstraint(Sketcher.Constraint("Vertical", 2))
sketch11.addConstraint(Sketcher.Constraint("Horizontal", 3))
sketch11.addConstraint(Sketcher.Constraint("Equal", 3, 0))
sketch11.addConstraint(Sketcher.Constraint("DistanceX", 1, 1, 1, 2, Q("0.6 mm")))
sketch11.addConstraint(Sketcher.Constraint("DistanceX", 0, 2, -1, 1, Q("11.55 mm")))
sketch11.addConstraint(Sketcher.Constraint("DistanceY", -1, 1, 0, 2, Q("15.65 mm")))
pad10 = doc.addObject("PartDesign::Pad", "Pad009")
body.addObject(pad10)
pad10.Profile = sketch11
pad10.Length = 5.8
pad10.Reversed = True

# Sketch on XY plane
sketch12 = doc.addObject("Sketcher::SketchObject", "Sketch011")
body.addObject(sketch12)
sketch12.AttachmentSupport = (doc.XY_Plane, [""])
sketch12.MapMode = "FlatFace"
sketch12.AttachmentOffset = App.Placement(App.Vector(0, 0, -2.5), App.Rotation())
add_polygon(sketch12, [(-11.55, 12.55), (-11.55, 13.15), (-10.95, 13.15), (-10.95, 12.55)])  # lines 0-3
sketch12.addConstraint(Sketcher.Constraint("Vertical", 0))
sketch12.addConstraint(Sketcher.Constraint("Horizontal", 1))
sketch12.addConstraint(Sketcher.Constraint("Vertical", 2))
sketch12.addConstraint(Sketcher.Constraint("Horizontal", 3))
sketch12.addConstraint(Sketcher.Constraint("Equal", 3, 0))
sketch12.addConstraint(Sketcher.Constraint("DistanceX", 1, 1, 1, 2, Q("0.6 mm")))
sketch12.addConstraint(Sketcher.Constraint("DistanceX", 0, 2, -1, 1, Q("11.55 mm")))
sketch12.addConstraint(Sketcher.Constraint("DistanceY", -1, 1, 0, 2, Q("13.15 mm")))
pad11 = doc.addObject("PartDesign::Pad", "Pad010")
body.addObject(pad11)
pad11.Profile = sketch12
pad11.Length = 5.8
pad11.Reversed = True

# Sketch on XY plane
sketch13 = doc.addObject("Sketcher::SketchObject", "Sketch012")
body.addObject(sketch13)
sketch13.AttachmentSupport = (doc.XY_Plane, [""])
sketch13.MapMode = "FlatFace"
sketch13.AttachmentOffset = App.Placement(App.Vector(0, 0, -2.5), App.Rotation())
add_polygon(sketch13, [(-11.55, 10.05), (-11.55, 10.65), (-10.95, 10.65), (-10.95, 10.05)])  # lines 0-3
sketch13.addConstraint(Sketcher.Constraint("Vertical", 0))
sketch13.addConstraint(Sketcher.Constraint("Horizontal", 1))
sketch13.addConstraint(Sketcher.Constraint("Vertical", 2))
sketch13.addConstraint(Sketcher.Constraint("Horizontal", 3))
sketch13.addConstraint(Sketcher.Constraint("Equal", 3, 0))
sketch13.addConstraint(Sketcher.Constraint("DistanceX", 1, 1, 1, 2, Q("0.6 mm")))
sketch13.addConstraint(Sketcher.Constraint("DistanceX", 0, 2, -1, 1, Q("11.55 mm")))
sketch13.addConstraint(Sketcher.Constraint("DistanceY", -1, 1, 0, 2, Q("10.65 mm")))
pad12 = doc.addObject("PartDesign::Pad", "Pad011")
body.addObject(pad12)
pad12.Profile = sketch13
pad12.Length = 5.8
pad12.Reversed = True

# Sketch on XY plane
sketch14 = doc.addObject("Sketcher::SketchObject", "Sketch013")
body.addObject(sketch14)
sketch14.AttachmentSupport = (doc.XY_Plane, [""])
sketch14.MapMode = "FlatFace"
sketch14.AttachmentOffset = App.Placement(App.Vector(0, 0, -2.5), App.Rotation())
add_polygon(sketch14, [(-11.55, 7.55), (-11.55, 8.15), (-10.95, 8.15), (-10.95, 7.55)])  # lines 0-3
sketch14.addConstraint(Sketcher.Constraint("Vertical", 0))
sketch14.addConstraint(Sketcher.Constraint("Horizontal", 1))
sketch14.addConstraint(Sketcher.Constraint("Vertical", 2))
sketch14.addConstraint(Sketcher.Constraint("Horizontal", 3))
sketch14.addConstraint(Sketcher.Constraint("Equal", 3, 0))
sketch14.addConstraint(Sketcher.Constraint("DistanceX", 1, 1, 1, 2, Q("0.6 mm")))
sketch14.addConstraint(Sketcher.Constraint("DistanceX", 0, 2, -1, 1, Q("11.55 mm")))
sketch14.addConstraint(Sketcher.Constraint("DistanceY", -1, 1, 0, 2, Q("8.15 mm")))
pad13 = doc.addObject("PartDesign::Pad", "Pad012")
body.addObject(pad13)
pad13.Profile = sketch14
pad13.Length = 5.8
pad13.Reversed = True

# Sketch on XY plane
sketch15 = doc.addObject("Sketcher::SketchObject", "Sketch014")
body.addObject(sketch15)
sketch15.AttachmentSupport = (doc.XY_Plane, [""])
sketch15.MapMode = "FlatFace"
sketch15.AttachmentOffset = App.Placement(App.Vector(0, 0, -2.5), App.Rotation())
add_polygon(sketch15, [(-11.55, 5.05), (-11.55, 5.65), (-10.95, 5.65), (-10.95, 5.05)])  # lines 0-3
sketch15.addConstraint(Sketcher.Constraint("Vertical", 0))
sketch15.addConstraint(Sketcher.Constraint("Horizontal", 1))
sketch15.addConstraint(Sketcher.Constraint("Vertical", 2))
sketch15.addConstraint(Sketcher.Constraint("Horizontal", 3))
sketch15.addConstraint(Sketcher.Constraint("Equal", 3, 0))
sketch15.addConstraint(Sketcher.Constraint("DistanceX", 1, 1, 1, 2, Q("0.6 mm")))
sketch15.addConstraint(Sketcher.Constraint("DistanceX", 0, 2, -1, 1, Q("11.55 mm")))
sketch15.addConstraint(Sketcher.Constraint("DistanceY", -1, 1, 0, 2, Q("5.65 mm")))
pad14 = doc.addObject("PartDesign::Pad", "Pad013")
body.addObject(pad14)
pad14.Profile = sketch15
pad14.Length = 5.8
pad14.Reversed = True

# Sketch on XY plane
sketch16 = doc.addObject("Sketcher::SketchObject", "Sketch015")
body.addObject(sketch16)
sketch16.AttachmentSupport = (doc.XY_Plane, [""])
sketch16.MapMode = "FlatFace"
sketch16.AttachmentOffset = App.Placement(App.Vector(0, 0, -2.5), App.Rotation())
add_polygon(sketch16, [(-11.55, 2.55), (-11.55, 3.15), (-10.95, 3.15), (-10.95, 2.55)])  # lines 0-3
sketch16.addConstraint(Sketcher.Constraint("Vertical", 0))
sketch16.addConstraint(Sketcher.Constraint("Horizontal", 1))
sketch16.addConstraint(Sketcher.Constraint("Vertical", 2))
sketch16.addConstraint(Sketcher.Constraint("Horizontal", 3))
sketch16.addConstraint(Sketcher.Constraint("Equal", 3, 0))
sketch16.addConstraint(Sketcher.Constraint("DistanceX", 1, 1, 1, 2, Q("0.6 mm")))
sketch16.addConstraint(Sketcher.Constraint("DistanceX", 0, 2, -1, 1, Q("11.55 mm")))
sketch16.addConstraint(Sketcher.Constraint("DistanceY", -1, 1, 0, 2, Q("3.15 mm")))
pad15 = doc.addObject("PartDesign::Pad", "Pad014")
body.addObject(pad15)
pad15.Profile = sketch16
pad15.Length = 5.8
pad15.Reversed = True

# Sketch on XY plane
sketch17 = doc.addObject("Sketcher::SketchObject", "Sketch016")
body.addObject(sketch17)
sketch17.AttachmentSupport = (doc.XY_Plane, [""])
sketch17.MapMode = "FlatFace"
sketch17.AttachmentOffset = App.Placement(App.Vector(0, 0, -2.5), App.Rotation())
add_polygon(sketch17, [(-11.55, 0.05), (-11.55, 0.65), (-10.95, 0.65), (-10.95, 0.05)])  # lines 0-3
sketch17.addConstraint(Sketcher.Constraint("Vertical", 0))
sketch17.addConstraint(Sketcher.Constraint("Horizontal", 1))
sketch17.addConstraint(Sketcher.Constraint("Vertical", 2))
sketch17.addConstraint(Sketcher.Constraint("Horizontal", 3))
sketch17.addConstraint(Sketcher.Constraint("Equal", 3, 0))
sketch17.addConstraint(Sketcher.Constraint("DistanceX", 1, 1, 1, 2, Q("0.6 mm")))
sketch17.addConstraint(Sketcher.Constraint("DistanceX", 0, 2, -1, 1, Q("11.55 mm")))
sketch17.addConstraint(Sketcher.Constraint("DistanceY", -1, 1, 0, 2, Q("0.65 mm")))
pad16 = doc.addObject("PartDesign::Pad", "Pad015")
body.addObject(pad16)
pad16.Profile = sketch17
pad16.Length = 5.8
pad16.Reversed = True

# Sketch on XY plane
sketch18 = doc.addObject("Sketcher::SketchObject", "Sketch017")
body.addObject(sketch18)
sketch18.AttachmentSupport = (doc.XY_Plane, [""])
sketch18.MapMode = "FlatFace"
sketch18.AttachmentOffset = App.Placement(App.Vector(0, 0, -2.5), App.Rotation())
add_polygon(sketch18, [(-11.55, -2.45), (-11.55, -1.85), (-10.95, -1.85), (-10.95, -2.45)])  # lines 0-3
sketch18.addConstraint(Sketcher.Constraint("Vertical", 0))
sketch18.addConstraint(Sketcher.Constraint("Horizontal", 1))
sketch18.addConstraint(Sketcher.Constraint("Vertical", 2))
sketch18.addConstraint(Sketcher.Constraint("Horizontal", 3))
sketch18.addConstraint(Sketcher.Constraint("Equal", 3, 0))
sketch18.addConstraint(Sketcher.Constraint("DistanceX", 1, 1, 1, 2, Q("0.6 mm")))
sketch18.addConstraint(Sketcher.Constraint("DistanceX", 0, 2, -1, 1, Q("11.55 mm")))
sketch18.addConstraint(Sketcher.Constraint("DistanceY", 0, 2, -1, 1, Q("1.85 mm")))
pad17 = doc.addObject("PartDesign::Pad", "Pad016")
body.addObject(pad17)
pad17.Profile = sketch18
pad17.Length = 5.8
pad17.Reversed = True

# Sketch on XY plane
sketch19 = doc.addObject("Sketcher::SketchObject", "Sketch018")
body.addObject(sketch19)
sketch19.AttachmentSupport = (doc.XY_Plane, [""])
sketch19.MapMode = "FlatFace"
sketch19.AttachmentOffset = App.Placement(App.Vector(0, 0, -2.5), App.Rotation())
add_polygon(sketch19, [(-11.55, -4.95), (-11.55, -4.35), (-10.95, -4.35), (-10.95, -4.95)])  # lines 0-3
sketch19.addConstraint(Sketcher.Constraint("Vertical", 0))
sketch19.addConstraint(Sketcher.Constraint("Horizontal", 1))
sketch19.addConstraint(Sketcher.Constraint("Vertical", 2))
sketch19.addConstraint(Sketcher.Constraint("Horizontal", 3))
sketch19.addConstraint(Sketcher.Constraint("Equal", 3, 0))
sketch19.addConstraint(Sketcher.Constraint("DistanceX", 1, 1, 1, 2, Q("0.6 mm")))
sketch19.addConstraint(Sketcher.Constraint("DistanceX", 0, 2, -1, 1, Q("11.55 mm")))
sketch19.addConstraint(Sketcher.Constraint("DistanceY", 0, 2, -1, 1, Q("4.35 mm")))
pad18 = doc.addObject("PartDesign::Pad", "Pad017")
body.addObject(pad18)
pad18.Profile = sketch19
pad18.Length = 5.8
pad18.Reversed = True

# Sketch on XY plane
sketch20 = doc.addObject("Sketcher::SketchObject", "Sketch019")
body.addObject(sketch20)
sketch20.AttachmentSupport = (doc.XY_Plane, [""])
sketch20.MapMode = "FlatFace"
sketch20.AttachmentOffset = App.Placement(App.Vector(0, 0, -2.5), App.Rotation())
add_polygon(sketch20, [(-11.55, -7.45), (-11.55, -6.85), (-10.95, -6.85), (-10.95, -7.45)])  # lines 0-3
sketch20.addConstraint(Sketcher.Constraint("Vertical", 0))
sketch20.addConstraint(Sketcher.Constraint("Horizontal", 1))
sketch20.addConstraint(Sketcher.Constraint("Vertical", 2))
sketch20.addConstraint(Sketcher.Constraint("Horizontal", 3))
sketch20.addConstraint(Sketcher.Constraint("Equal", 3, 0))
sketch20.addConstraint(Sketcher.Constraint("DistanceX", 1, 1, 1, 2, Q("0.6 mm")))
sketch20.addConstraint(Sketcher.Constraint("DistanceX", 0, 2, -1, 1, Q("11.55 mm")))
sketch20.addConstraint(Sketcher.Constraint("DistanceY", 0, 2, -1, 1, Q("6.85 mm")))
pad19 = doc.addObject("PartDesign::Pad", "Pad018")
body.addObject(pad19)
pad19.Profile = sketch20
pad19.Length = 5.8
pad19.Reversed = True

# Sketch on XY plane
sketch21 = doc.addObject("Sketcher::SketchObject", "Sketch020")
body.addObject(sketch21)
sketch21.AttachmentSupport = (doc.XY_Plane, [""])
sketch21.MapMode = "FlatFace"
sketch21.AttachmentOffset = App.Placement(App.Vector(0, 0, -2.5), App.Rotation())
add_polygon(sketch21, [(-11.55, -9.95), (-11.55, -9.35), (-10.95, -9.35), (-10.95, -9.95)])  # lines 0-3
sketch21.addConstraint(Sketcher.Constraint("Vertical", 0))
sketch21.addConstraint(Sketcher.Constraint("Horizontal", 1))
sketch21.addConstraint(Sketcher.Constraint("Vertical", 2))
sketch21.addConstraint(Sketcher.Constraint("Horizontal", 3))
sketch21.addConstraint(Sketcher.Constraint("Equal", 3, 0))
sketch21.addConstraint(Sketcher.Constraint("DistanceX", 1, 1, 1, 2, Q("0.6 mm")))
sketch21.addConstraint(Sketcher.Constraint("DistanceX", 0, 2, -1, 1, Q("11.55 mm")))
sketch21.addConstraint(Sketcher.Constraint("DistanceY", 0, 2, -1, 1, Q("9.35 mm")))
pad20 = doc.addObject("PartDesign::Pad", "Pad019")
body.addObject(pad20)
pad20.Profile = sketch21
pad20.Length = 5.8
pad20.Reversed = True

# Sketch on XY plane
sketch22 = doc.addObject("Sketcher::SketchObject", "Sketch021")
body.addObject(sketch22)
sketch22.AttachmentSupport = (doc.XY_Plane, [""])
sketch22.MapMode = "FlatFace"
sketch22.AttachmentOffset = App.Placement(App.Vector(0, 0, -2.5), App.Rotation())
add_polygon(sketch22, [(-11.55, -12.45), (-11.55, -11.85), (-10.95, -11.85), (-10.95, -12.45)])  # lines 0-3
sketch22.addConstraint(Sketcher.Constraint("Vertical", 0))
sketch22.addConstraint(Sketcher.Constraint("Horizontal", 1))
sketch22.addConstraint(Sketcher.Constraint("Vertical", 2))
sketch22.addConstraint(Sketcher.Constraint("Horizontal", 3))
sketch22.addConstraint(Sketcher.Constraint("Equal", 3, 0))
sketch22.addConstraint(Sketcher.Constraint("DistanceX", 1, 1, 1, 2, Q("0.6 mm")))
sketch22.addConstraint(Sketcher.Constraint("DistanceX", 0, 2, -1, 1, Q("11.55 mm")))
sketch22.addConstraint(Sketcher.Constraint("DistanceY", 0, 2, -1, 1, Q("11.85 mm")))
pad21 = doc.addObject("PartDesign::Pad", "Pad020")
body.addObject(pad21)
pad21.Profile = sketch22
pad21.Length = 5.8
pad21.Reversed = True

# Sketch on XY plane
sketch23 = doc.addObject("Sketcher::SketchObject", "Sketch022")
body.addObject(sketch23)
sketch23.AttachmentSupport = (doc.XY_Plane, [""])
sketch23.MapMode = "FlatFace"
sketch23.AttachmentOffset = App.Placement(App.Vector(0, 0, -2.5), App.Rotation())
add_polygon(sketch23, [(-11.55, -14.95), (-11.55, -14.35), (-10.95, -14.35), (-10.95, -14.95)])  # lines 0-3
sketch23.addConstraint(Sketcher.Constraint("Vertical", 0))
sketch23.addConstraint(Sketcher.Constraint("Horizontal", 1))
sketch23.addConstraint(Sketcher.Constraint("Vertical", 2))
sketch23.addConstraint(Sketcher.Constraint("Horizontal", 3))
sketch23.addConstraint(Sketcher.Constraint("Equal", 3, 0))
sketch23.addConstraint(Sketcher.Constraint("DistanceX", 1, 1, 1, 2, Q("0.6 mm")))
sketch23.addConstraint(Sketcher.Constraint("DistanceX", 0, 2, -1, 1, Q("11.55 mm")))
sketch23.addConstraint(Sketcher.Constraint("DistanceY", 0, 2, -1, 1, Q("14.35 mm")))
pad22 = doc.addObject("PartDesign::Pad", "Pad021")
body.addObject(pad22)
pad22.Profile = sketch23
pad22.Length = 5.8
pad22.Reversed = True

# Sketch on XY plane
sketch24 = doc.addObject("Sketcher::SketchObject", "Sketch023")
body.addObject(sketch24)
sketch24.AttachmentSupport = (doc.XY_Plane, [""])
sketch24.MapMode = "FlatFace"
sketch24.AttachmentOffset = App.Placement(App.Vector(0, 0, -2.5), App.Rotation())
add_polygon(sketch24, [(-11.55, -17.45), (-11.55, -16.85), (-10.95, -16.85), (-10.95, -17.45)])  # lines 0-3
sketch24.addConstraint(Sketcher.Constraint("Vertical", 0))
sketch24.addConstraint(Sketcher.Constraint("Horizontal", 1))
sketch24.addConstraint(Sketcher.Constraint("Vertical", 2))
sketch24.addConstraint(Sketcher.Constraint("Horizontal", 3))
sketch24.addConstraint(Sketcher.Constraint("Equal", 3, 0))
sketch24.addConstraint(Sketcher.Constraint("DistanceX", 1, 1, 1, 2, Q("0.6 mm")))
sketch24.addConstraint(Sketcher.Constraint("DistanceX", 0, 2, -1, 1, Q("11.55 mm")))
sketch24.addConstraint(Sketcher.Constraint("DistanceY", 0, 2, -1, 1, Q("16.85 mm")))
pad23 = doc.addObject("PartDesign::Pad", "Pad022")
body.addObject(pad23)
pad23.Profile = sketch24
pad23.Length = 5.8
pad23.Reversed = True

doc.recompute()
